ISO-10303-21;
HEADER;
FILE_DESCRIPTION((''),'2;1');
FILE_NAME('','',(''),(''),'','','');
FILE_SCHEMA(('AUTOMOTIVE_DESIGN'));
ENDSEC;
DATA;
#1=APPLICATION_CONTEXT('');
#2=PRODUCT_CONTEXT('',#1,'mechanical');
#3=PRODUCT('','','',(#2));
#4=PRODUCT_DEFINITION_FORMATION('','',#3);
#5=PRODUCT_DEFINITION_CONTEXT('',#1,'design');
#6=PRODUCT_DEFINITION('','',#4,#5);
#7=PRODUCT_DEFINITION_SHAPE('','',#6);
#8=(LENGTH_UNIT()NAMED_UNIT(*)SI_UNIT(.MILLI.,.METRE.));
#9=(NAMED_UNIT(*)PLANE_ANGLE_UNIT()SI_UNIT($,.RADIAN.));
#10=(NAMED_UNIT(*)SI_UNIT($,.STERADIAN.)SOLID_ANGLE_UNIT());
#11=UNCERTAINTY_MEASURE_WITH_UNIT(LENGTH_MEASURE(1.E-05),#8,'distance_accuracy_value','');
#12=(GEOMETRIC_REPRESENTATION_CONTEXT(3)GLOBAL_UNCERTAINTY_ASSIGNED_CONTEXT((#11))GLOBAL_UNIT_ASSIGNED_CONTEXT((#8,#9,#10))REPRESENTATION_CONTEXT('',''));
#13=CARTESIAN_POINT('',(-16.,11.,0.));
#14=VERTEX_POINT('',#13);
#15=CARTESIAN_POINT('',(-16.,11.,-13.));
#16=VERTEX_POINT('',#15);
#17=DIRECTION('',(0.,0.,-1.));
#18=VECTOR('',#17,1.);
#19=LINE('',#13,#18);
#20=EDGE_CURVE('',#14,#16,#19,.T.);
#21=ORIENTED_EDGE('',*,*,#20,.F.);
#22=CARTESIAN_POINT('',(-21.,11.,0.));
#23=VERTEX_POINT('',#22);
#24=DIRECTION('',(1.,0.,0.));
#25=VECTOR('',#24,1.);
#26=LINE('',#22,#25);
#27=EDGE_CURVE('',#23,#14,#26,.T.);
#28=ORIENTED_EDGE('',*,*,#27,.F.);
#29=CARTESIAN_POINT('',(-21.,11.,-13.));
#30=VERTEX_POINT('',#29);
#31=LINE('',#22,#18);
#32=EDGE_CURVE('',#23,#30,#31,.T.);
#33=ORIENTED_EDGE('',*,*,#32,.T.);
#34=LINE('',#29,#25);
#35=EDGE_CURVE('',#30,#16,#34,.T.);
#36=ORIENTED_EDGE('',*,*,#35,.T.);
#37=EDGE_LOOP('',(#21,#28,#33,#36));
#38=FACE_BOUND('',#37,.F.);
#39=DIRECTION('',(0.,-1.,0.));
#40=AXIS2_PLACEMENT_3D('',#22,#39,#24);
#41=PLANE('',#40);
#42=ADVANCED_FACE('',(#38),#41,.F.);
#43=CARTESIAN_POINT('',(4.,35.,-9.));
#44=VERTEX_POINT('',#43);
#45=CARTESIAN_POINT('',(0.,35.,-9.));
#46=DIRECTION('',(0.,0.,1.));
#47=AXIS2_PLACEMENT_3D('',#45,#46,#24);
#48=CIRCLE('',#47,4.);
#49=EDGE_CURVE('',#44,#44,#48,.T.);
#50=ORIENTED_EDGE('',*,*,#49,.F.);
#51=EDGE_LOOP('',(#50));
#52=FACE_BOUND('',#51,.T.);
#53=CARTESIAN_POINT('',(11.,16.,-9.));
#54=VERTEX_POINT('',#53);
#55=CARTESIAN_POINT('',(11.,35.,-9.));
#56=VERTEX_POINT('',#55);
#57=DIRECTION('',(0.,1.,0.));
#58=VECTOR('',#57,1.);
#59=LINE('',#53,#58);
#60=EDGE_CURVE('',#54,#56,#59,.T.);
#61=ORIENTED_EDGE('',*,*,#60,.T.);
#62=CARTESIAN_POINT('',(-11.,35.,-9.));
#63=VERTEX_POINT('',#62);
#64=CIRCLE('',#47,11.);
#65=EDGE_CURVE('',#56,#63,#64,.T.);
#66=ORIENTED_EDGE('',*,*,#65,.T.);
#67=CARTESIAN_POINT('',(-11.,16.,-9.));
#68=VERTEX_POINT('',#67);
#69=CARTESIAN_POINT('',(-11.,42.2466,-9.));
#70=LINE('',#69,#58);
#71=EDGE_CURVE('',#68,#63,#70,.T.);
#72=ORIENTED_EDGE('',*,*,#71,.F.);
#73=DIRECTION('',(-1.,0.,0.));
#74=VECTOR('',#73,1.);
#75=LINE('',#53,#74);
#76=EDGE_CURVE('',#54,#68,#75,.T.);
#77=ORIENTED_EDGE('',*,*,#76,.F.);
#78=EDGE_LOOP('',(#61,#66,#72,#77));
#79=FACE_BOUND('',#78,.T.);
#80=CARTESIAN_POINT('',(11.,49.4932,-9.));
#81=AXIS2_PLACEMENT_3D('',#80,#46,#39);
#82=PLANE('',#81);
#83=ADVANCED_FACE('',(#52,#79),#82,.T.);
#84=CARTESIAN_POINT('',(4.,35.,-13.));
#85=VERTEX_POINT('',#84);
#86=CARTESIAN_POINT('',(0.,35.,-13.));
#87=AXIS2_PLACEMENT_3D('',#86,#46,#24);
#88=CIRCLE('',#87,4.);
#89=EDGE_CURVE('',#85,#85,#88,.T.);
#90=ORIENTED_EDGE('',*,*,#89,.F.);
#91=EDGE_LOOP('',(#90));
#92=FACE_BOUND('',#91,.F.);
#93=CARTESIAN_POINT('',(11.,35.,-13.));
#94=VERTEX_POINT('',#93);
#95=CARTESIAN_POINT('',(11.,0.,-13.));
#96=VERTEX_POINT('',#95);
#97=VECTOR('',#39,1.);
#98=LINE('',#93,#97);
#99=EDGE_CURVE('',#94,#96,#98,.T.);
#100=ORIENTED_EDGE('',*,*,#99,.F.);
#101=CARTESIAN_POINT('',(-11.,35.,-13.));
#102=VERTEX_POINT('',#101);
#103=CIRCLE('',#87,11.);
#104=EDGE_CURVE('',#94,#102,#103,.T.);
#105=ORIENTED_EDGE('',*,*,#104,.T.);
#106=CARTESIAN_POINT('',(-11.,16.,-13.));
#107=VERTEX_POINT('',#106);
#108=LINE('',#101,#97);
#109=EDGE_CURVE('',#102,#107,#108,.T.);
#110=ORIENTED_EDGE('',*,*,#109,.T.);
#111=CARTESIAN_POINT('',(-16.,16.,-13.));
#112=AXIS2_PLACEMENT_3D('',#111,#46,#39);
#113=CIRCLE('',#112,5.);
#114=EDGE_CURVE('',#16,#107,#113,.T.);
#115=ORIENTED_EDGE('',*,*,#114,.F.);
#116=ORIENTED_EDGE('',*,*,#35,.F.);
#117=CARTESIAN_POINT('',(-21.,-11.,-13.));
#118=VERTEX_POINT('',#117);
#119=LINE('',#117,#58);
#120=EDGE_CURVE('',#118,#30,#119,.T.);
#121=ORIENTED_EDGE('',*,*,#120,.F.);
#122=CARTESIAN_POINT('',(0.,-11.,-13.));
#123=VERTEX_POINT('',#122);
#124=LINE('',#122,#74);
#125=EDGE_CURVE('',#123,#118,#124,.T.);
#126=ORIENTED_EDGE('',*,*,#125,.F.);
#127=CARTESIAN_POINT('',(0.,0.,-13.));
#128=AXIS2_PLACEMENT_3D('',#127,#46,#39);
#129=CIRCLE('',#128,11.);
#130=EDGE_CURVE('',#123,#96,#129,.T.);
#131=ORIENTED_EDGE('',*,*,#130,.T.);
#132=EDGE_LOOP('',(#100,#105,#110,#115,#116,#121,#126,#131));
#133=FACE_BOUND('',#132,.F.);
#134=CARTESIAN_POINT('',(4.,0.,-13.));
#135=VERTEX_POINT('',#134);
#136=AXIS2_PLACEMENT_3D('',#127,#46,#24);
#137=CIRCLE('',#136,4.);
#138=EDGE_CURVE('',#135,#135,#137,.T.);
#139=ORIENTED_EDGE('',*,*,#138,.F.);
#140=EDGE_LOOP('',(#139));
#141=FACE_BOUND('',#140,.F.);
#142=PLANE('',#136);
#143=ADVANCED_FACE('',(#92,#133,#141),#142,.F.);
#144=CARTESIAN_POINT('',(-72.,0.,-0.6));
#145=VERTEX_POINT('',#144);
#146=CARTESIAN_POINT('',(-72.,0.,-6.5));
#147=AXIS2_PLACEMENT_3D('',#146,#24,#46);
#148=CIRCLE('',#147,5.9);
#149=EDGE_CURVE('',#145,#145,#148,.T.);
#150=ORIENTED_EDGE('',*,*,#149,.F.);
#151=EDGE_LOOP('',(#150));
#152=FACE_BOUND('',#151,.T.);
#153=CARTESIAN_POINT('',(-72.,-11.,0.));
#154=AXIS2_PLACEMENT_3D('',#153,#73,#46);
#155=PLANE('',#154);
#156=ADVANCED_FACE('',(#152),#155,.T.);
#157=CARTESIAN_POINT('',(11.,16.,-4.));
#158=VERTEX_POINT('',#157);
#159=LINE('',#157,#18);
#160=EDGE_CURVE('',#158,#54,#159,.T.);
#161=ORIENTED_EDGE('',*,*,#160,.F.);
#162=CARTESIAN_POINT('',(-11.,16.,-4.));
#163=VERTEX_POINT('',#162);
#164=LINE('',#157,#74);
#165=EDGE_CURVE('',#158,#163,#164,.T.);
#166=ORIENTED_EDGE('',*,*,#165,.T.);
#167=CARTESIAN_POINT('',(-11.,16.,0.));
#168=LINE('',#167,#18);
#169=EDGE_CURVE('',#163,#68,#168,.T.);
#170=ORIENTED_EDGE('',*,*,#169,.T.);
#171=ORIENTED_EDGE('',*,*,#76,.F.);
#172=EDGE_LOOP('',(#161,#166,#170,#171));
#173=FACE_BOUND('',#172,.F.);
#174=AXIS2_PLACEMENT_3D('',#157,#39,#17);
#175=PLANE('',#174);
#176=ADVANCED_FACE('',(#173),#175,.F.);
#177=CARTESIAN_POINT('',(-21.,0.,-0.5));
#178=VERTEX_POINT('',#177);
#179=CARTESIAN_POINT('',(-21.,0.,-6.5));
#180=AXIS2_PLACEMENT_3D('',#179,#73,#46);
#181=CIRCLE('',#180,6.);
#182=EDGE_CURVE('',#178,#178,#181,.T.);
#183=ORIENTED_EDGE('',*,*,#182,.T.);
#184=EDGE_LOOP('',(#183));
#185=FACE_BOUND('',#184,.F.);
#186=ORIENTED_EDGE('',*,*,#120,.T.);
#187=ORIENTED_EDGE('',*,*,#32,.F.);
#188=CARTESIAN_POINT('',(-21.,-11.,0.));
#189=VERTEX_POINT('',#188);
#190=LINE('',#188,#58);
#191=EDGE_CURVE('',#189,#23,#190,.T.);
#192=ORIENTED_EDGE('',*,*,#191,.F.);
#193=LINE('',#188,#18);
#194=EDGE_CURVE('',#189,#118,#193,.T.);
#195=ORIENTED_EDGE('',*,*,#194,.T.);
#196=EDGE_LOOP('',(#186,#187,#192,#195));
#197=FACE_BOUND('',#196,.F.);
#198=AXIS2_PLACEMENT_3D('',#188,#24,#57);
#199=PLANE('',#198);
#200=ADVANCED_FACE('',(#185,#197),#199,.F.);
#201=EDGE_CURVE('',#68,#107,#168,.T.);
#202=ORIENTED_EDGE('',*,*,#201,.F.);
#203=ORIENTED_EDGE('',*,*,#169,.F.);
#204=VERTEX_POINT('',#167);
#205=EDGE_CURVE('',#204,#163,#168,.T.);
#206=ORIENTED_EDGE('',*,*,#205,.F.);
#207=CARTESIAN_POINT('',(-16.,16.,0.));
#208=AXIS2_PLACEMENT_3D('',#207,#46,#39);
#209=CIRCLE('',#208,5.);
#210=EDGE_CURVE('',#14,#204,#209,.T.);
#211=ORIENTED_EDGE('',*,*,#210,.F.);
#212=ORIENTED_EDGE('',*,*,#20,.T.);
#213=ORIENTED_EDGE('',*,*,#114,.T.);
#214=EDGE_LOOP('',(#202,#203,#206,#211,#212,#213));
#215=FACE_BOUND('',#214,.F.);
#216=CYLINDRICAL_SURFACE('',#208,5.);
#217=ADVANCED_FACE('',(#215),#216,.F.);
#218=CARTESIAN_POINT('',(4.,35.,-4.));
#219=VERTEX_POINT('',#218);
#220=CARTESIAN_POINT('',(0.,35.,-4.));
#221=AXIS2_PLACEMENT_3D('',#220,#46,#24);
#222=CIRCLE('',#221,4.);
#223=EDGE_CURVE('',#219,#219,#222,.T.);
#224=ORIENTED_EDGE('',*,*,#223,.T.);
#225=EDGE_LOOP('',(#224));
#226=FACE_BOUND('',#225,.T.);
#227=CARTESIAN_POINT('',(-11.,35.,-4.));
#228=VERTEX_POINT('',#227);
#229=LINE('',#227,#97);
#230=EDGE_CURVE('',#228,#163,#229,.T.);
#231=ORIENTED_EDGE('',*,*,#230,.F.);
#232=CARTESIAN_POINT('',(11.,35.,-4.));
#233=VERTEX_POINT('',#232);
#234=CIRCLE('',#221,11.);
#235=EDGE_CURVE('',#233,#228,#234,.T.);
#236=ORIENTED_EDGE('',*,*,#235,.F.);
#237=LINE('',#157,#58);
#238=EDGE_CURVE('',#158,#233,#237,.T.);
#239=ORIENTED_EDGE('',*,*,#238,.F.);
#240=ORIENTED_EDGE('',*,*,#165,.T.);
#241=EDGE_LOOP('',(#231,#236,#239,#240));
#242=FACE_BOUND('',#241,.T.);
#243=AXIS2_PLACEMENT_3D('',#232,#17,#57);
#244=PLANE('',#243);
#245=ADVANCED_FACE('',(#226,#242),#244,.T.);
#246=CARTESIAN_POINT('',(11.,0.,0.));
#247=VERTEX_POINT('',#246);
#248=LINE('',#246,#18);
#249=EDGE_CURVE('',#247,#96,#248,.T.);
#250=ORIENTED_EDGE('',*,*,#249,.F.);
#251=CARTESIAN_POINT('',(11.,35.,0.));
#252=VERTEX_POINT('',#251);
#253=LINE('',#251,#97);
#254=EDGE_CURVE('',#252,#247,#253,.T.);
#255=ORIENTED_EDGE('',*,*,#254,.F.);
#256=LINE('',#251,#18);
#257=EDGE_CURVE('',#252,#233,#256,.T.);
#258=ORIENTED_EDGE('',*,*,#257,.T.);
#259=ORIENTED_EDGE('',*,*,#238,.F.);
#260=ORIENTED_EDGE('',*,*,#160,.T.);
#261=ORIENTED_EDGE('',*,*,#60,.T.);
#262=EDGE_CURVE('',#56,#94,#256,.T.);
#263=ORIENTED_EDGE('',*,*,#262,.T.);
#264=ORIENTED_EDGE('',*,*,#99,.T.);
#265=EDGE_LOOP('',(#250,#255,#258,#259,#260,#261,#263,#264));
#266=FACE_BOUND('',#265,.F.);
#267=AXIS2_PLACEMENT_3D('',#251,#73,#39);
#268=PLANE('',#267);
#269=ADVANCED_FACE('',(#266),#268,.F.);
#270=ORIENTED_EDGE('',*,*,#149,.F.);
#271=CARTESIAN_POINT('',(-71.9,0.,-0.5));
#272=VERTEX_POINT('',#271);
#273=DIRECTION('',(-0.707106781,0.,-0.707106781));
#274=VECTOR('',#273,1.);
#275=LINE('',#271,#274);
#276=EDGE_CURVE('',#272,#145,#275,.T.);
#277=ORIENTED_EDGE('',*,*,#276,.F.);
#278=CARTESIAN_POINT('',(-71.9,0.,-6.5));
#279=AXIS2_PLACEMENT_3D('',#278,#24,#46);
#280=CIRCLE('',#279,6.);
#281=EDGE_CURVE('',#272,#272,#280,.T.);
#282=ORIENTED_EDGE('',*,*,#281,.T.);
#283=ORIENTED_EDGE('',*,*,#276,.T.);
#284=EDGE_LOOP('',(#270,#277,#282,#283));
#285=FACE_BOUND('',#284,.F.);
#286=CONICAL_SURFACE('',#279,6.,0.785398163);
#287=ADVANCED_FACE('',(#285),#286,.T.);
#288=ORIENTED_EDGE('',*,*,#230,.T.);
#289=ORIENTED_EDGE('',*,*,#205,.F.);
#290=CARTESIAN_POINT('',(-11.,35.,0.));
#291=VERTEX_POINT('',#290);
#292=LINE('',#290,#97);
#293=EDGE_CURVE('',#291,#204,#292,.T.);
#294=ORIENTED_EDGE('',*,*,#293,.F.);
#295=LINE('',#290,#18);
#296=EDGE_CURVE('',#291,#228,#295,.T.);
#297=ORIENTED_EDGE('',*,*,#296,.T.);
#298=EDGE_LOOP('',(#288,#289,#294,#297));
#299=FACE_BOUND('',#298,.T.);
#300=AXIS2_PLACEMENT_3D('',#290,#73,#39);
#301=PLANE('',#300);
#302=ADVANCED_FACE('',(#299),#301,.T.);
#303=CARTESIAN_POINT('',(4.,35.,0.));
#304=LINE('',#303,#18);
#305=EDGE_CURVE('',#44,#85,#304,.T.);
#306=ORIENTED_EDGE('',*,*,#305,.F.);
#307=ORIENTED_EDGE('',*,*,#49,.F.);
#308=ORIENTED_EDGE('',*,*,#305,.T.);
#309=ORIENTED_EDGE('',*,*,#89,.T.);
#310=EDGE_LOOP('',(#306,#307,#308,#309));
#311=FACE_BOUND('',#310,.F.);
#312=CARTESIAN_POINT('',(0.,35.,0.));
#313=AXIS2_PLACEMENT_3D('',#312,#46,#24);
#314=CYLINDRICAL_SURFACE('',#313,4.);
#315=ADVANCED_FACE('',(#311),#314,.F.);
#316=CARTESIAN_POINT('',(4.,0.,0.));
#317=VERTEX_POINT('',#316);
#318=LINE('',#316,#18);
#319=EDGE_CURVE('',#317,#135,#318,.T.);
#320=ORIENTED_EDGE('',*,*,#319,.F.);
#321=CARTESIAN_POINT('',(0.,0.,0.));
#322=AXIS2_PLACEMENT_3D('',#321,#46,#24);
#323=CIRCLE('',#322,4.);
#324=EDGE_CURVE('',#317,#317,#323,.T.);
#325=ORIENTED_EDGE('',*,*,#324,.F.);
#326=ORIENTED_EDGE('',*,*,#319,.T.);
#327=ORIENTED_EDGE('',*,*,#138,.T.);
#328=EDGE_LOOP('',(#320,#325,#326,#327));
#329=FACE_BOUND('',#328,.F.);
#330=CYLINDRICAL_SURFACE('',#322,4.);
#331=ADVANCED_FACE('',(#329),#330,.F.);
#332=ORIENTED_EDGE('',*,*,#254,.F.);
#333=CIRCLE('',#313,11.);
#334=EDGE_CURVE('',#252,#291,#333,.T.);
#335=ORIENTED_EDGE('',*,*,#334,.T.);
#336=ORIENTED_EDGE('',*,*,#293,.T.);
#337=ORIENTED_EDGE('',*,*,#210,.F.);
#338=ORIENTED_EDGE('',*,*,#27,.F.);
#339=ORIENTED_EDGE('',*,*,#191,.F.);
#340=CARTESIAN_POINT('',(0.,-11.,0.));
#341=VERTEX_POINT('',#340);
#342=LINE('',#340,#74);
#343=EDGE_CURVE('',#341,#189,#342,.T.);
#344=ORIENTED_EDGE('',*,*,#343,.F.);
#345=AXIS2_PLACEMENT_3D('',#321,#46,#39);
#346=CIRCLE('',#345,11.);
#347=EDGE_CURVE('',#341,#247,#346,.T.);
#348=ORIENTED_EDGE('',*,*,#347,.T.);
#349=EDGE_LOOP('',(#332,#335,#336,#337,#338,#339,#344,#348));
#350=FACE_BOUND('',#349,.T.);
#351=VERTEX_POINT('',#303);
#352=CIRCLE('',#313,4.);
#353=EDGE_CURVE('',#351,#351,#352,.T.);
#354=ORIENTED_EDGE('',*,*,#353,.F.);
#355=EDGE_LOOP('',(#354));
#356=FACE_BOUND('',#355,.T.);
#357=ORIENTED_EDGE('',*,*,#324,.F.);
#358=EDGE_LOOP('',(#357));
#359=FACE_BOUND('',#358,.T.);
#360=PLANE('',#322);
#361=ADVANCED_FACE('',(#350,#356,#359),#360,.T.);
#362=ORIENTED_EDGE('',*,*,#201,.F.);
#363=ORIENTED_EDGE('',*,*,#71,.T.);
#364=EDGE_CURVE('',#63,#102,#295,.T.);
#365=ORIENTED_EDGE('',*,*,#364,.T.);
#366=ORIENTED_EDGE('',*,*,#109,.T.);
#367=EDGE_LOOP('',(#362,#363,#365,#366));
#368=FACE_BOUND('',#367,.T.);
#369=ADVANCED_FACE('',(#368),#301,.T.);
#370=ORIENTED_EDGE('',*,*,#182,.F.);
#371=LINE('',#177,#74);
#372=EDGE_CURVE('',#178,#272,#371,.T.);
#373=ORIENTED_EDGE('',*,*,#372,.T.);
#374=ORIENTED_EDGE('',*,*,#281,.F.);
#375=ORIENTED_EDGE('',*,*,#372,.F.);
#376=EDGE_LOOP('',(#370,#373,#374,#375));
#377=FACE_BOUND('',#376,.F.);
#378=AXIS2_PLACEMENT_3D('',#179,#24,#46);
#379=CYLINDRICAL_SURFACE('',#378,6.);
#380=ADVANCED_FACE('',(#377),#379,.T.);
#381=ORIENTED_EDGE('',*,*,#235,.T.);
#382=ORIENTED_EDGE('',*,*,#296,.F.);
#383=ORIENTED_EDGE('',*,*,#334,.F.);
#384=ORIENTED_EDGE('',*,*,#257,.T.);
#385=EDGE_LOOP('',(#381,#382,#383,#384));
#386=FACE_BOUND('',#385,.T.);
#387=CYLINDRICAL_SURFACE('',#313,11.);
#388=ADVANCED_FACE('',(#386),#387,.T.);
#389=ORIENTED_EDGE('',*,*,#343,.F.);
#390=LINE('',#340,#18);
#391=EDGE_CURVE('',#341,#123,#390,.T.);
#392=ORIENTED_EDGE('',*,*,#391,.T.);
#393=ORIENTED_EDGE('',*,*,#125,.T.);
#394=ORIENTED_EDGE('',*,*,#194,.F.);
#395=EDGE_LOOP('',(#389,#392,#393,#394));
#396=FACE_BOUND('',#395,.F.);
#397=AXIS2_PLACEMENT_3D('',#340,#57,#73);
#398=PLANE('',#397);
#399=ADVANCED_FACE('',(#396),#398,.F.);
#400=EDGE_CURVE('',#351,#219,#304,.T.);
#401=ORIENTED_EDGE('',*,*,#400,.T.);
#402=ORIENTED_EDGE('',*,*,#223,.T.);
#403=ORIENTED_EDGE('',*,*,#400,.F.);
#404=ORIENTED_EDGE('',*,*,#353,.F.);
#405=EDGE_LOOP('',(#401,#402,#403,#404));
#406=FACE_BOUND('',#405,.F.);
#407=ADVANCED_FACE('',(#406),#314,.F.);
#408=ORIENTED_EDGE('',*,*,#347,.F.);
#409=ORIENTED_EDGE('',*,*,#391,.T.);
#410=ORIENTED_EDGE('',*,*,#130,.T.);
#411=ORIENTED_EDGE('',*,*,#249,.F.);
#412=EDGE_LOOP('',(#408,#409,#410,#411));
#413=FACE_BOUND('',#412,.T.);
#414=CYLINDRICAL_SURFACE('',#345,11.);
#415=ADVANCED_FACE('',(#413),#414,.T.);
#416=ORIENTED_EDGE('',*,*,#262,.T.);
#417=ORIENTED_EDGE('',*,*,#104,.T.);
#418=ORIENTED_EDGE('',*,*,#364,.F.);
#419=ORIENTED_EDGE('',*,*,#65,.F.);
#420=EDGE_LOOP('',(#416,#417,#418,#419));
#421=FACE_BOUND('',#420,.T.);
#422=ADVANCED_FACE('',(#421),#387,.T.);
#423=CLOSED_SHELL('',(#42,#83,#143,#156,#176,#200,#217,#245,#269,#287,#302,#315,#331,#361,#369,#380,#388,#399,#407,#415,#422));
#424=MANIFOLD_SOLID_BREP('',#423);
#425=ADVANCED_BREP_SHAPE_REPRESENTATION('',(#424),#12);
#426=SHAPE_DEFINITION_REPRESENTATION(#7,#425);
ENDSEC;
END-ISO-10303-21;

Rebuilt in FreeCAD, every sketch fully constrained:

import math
import FreeCAD as App
import Part
import Sketcher
from FreeCAD import Vector
Q = App.Units.Quantity


def edges_at(feature, points):
    """Names of the edges that pass closest to the given points."""
    edges = feature.Shape.Edges
    near = lambda p: min(range(len(edges)), key=lambda i: edges[i].distToShape(Part.Vertex(*p))[0])
    return sorted({f"Edge{near(p) + 1}" for p in points})

doc = App.newDocument("Part")
params = doc.addObject("Spreadsheet::Sheet", "Params")
for row, (alias, value) in enumerate([
    ("sketch1_diameter", "8 mm"),
    ("sketch1_radius", "11 mm"),
    ("sketch1_radius2", "5 mm"),
    ("sketch1_width", "21 mm"),
    ("sketch1_height", "22 mm"),
    ("pad1_length", "13 mm"),
    ("sketch2_height", "5 mm"),
    ("sketch3_diameter", "12 mm"),
    ("pad2_length", "51 mm"),
    ("chamfer_size", "0.1 mm"),
], start=1):
    params.set(f"A{row}", alias)
    params.set(f"B{row}", "=" + value)
    params.setAlias(f"B{row}", alias)

body = doc.addObject("PartDesign::Body", "Body")

sketch1 = body.newObject("Sketcher::SketchObject", "Sketch")
sketch1.AttachmentSupport = (doc.getObject("XY_Plane"), [""])
sketch1.MapMode = "FlatFace"
sketch1.addGeometry([
    Part.LineSegment(Vector(-21, -11, 0), Vector(0, -11, 0)),
    Part.ArcOfCircle(Part.Circle(Vector(0, 0, 0), Vector(0, 0, 1), 11), math.radians(-90), math.radians(0)),
    Part.LineSegment(Vector(11, 0, 0), Vector(11, 35, 0)),
    Part.ArcOfCircle(Part.Circle(Vector(0, 35, 0), Vector(0, 0, 1), 11), math.radians(0), math.radians(180)),
    Part.LineSegment(Vector(-11, 35, 0), Vector(-11, 16, 0)),
    Part.ArcOfCircle(Part.Circle(Vector(-16, 16, 0), Vector(0, 0, 1), 5), math.radians(-90), math.radians(0)),
    Part.LineSegment(Vector(-16, 11, 0), Vector(-21, 11, 0)),
    Part.LineSegment(Vector(-21, 11, 0), Vector(-21, -11, 0)),
    Part.Circle(Vector(0, 0, 0), Vector(0, 0, 1), 4),
    Part.Circle(Vector(0, 35, 0), Vector(0, 0, 1), 4),
], False)
sketch1.addConstraint([
    Sketcher.Constraint("Tangent", 0, 2, 1, 1),
    Sketcher.Constraint("Tangent", 1, 2, 2, 1),
    Sketcher.Constraint("Tangent", 2, 2, 3, 1),
    Sketcher.Constraint("Tangent", 3, 2, 4, 1),
    Sketcher.Constraint("Tangent", 4, 2, 5, 2),
    Sketcher.Constraint("Tangent", 5, 1, 6, 1),
    Sketcher.Constraint("Coincident", 6, 2, 7, 1),
    Sketcher.Constraint("Coincident", 7, 2, 0, 1),
    Sketcher.Constraint("Horizontal", 0),
    Sketcher.Constraint("Vertical", 2),
    Sketcher.Constraint("Vertical", 4),
    Sketcher.Constraint("Horizontal", 6),
    Sketcher.Constraint("Vertical", 7),
    Sketcher.Constraint("Coincident", 1, 3, -1, 1),
    Sketcher.Constraint("Coincident", 8, 3, -1, 1),
    Sketcher.Constraint("Coincident", 9, 3, 3, 3),
    Sketcher.Constraint("Equal", 1, 3),
    Sketcher.Constraint("Equal", 8, 9),
    Sketcher.Constraint("Diameter", 8, Q("8 mm")),
    Sketcher.Constraint("Radius", 1, Q("11 mm")),
    Sketcher.Constraint("Radius", 5, Q("5 mm")),
    Sketcher.Constraint("DistanceX", 0, 1, 0, 2, Q("21 mm")),
    Sketcher.Constraint("DistanceY", 7, 2, 7, 1, Q("22 mm")),
    Sketcher.Constraint("DistanceY", 0, 2, 3, 3, Q("46 mm")),
])
sketch1.setExpression("Constraints[18]", "Params.sketch1_diameter")
sketch1.setExpression("Constraints[19]", "Params.sketch1_radius")
sketch1.setExpression("Constraints[20]", "Params.sketch1_radius2")
sketch1.setExpression("Constraints[21]", "Params.sketch1_width")
sketch1.setExpression("Constraints[22]", "Params.sketch1_height")
pad1 = body.newObject("PartDesign::Pad", "Pad")
pad1.Profile = sketch1
pad1.setExpression("Length", "Params.pad1_length")
pad1.Reversed = True

sketch2 = body.newObject("Sketcher::SketchObject", "Sketch001")
sketch2.AttachmentSupport = (doc.getObject("YZ_Plane"), [""])
sketch2.MapMode = "FlatFace"
sketch2.AttachmentOffset = App.Placement(Vector(0, 0, 11), App.Rotation())
sketch2.addGeometry([
    Part.LineSegment(Vector(49, -4, 0), Vector(16, -4, 0)),
    Part.LineSegment(Vector(16, -4, 0), Vector(16, -9, 0)),
    Part.LineSegment(Vector(16, -9, 0), Vector(49, -9, 0)),
    Part.LineSegment(Vector(49, -9, 0), Vector(49, -4, 0)),
], False)
sketch2.addConstraint([
    Sketcher.Constraint("Coincident", 0, 2, 1, 1),
    Sketcher.Constraint("Coincident", 1, 2, 2, 1),
    Sketcher.Constraint("Coincident", 2, 2, 3, 1),
    Sketcher.Constraint("Coincident", 3, 2, 0, 1),
    Sketcher.Constraint("Horizontal", 0),
    Sketcher.Constraint("Vertical", 1),
    Sketcher.Constraint("Horizontal", 2),
    Sketcher.Constraint("Vertical", 3),
    Sketcher.Constraint("DistanceY", 1, 2, 1, 1, Q("5 mm")),
    Sketcher.Constraint("DistanceY", 0, 2, -1, 1, Q("4 mm")),
    Sketcher.Constraint("DistanceX", 0, 2, 0, 1, Q("33.4932 mm")),
    Sketcher.Constraint("DistanceX", -1, 1, 0, 2, Q("16 mm")),
])
sketch2.setExpression("Constraints[8]", "Params.sketch2_height")
pocket1 = body.newObject("PartDesign::Pocket", "Pocket")
pocket1.Profile = sketch2
pocket1.Type = "ThroughAll"

sketch3 = body.newObject("Sketcher::SketchObject", "Sketch002")
sketch3.AttachmentSupport = (doc.getObject("YZ_Plane"), [""])
sketch3.MapMode = "FlatFace"
sketch3.AttachmentOffset = App.Placement(Vector(0, 0, -21), App.Rotation())
sketch3.addGeometry(Part.Circle(Vector(0, -6, 0), Vector(0, 0, 1), 6), False)
sketch3.addConstraint([
    Sketcher.Constraint("PointOnObject", 0, 3, -2),
    Sketcher.Constraint("Diameter", 0, Q("12 mm")),
    Sketcher.Constraint("DistanceY", 0, 3, -1, 1, Q("6.5 mm")),
])
sketch3.setExpression("Constraints[1]", "Params.sketch3_diameter")
pad2 = body.newObject("PartDesign::Pad", "Pad001")
pad2.Profile = sketch3
pad2.setExpression("Length", "Params.pad2_length")
pad2.Reversed = True
doc.recompute()

chamfer = body.newObject("PartDesign::Chamfer", "Chamfer")
chamfer.Base = (pad2, edges_at(pad2, [(-72, 0, -12.5)]))
chamfer.setExpression("Size", "Params.chamfer_size")

doc.recompute()
